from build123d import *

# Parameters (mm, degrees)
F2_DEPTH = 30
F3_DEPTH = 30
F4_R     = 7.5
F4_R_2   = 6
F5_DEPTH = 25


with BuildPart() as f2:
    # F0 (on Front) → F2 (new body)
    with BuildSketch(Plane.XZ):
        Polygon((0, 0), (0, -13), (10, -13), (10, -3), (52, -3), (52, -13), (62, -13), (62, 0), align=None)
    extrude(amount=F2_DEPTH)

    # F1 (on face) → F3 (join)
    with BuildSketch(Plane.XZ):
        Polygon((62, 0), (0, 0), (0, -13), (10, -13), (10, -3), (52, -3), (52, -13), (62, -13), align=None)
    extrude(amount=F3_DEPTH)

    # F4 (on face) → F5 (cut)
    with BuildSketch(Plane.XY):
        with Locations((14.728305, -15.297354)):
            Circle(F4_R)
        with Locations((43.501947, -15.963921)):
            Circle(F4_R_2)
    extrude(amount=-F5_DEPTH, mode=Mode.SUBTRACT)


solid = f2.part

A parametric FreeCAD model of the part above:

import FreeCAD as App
import Part
import Sketcher
from FreeCAD import Vector

doc = App.newDocument("Part")
params = doc.addObject("Spreadsheet::Sheet", "Params")
for row, (alias, value) in enumerate([
    ("sketch1_width", "10 mm"),
    ("sketch1_width2", "42 mm"),
    ("sketch1_height", "13 mm"),
    ("pad1_length", "30 mm"),
    ("sketch2_width", "62 mm"),
    ("sketch2_width2", "10 mm"),
    ("sketch2_height", "13 mm"),
    ("pad2_length", "30 mm"),
    ("sketch3_diameter", "15 mm"),
    ("sketch3_diameter2", "12 mm"),
    ("pocket1_length", "25 mm"),
], start=1):
    params.set(f"A{row}", alias)
    params.set(f"B{row}", "=" + value)
    params.setAlias(f"B{row}", alias)

body = doc.addObject("PartDesign::Body", "Body")

# Sketch on XZ plane
sketch1 = doc.addObject("Sketcher::SketchObject", "Sketch")
body.addObject(sketch1)
sketch1.AttachmentSupport = (doc.XZ_Plane, [""])
sketch1.MapMode = "FlatFace"
sketch1.addGeometry(Part.LineSegment(Vector(0, 0, 0), Vector(0, -13, 0)), False)
sketch1.addGeometry(Part.LineSegment(Vector(0, -13, 0), Vector(10, -13, 0)), False)
sketch1.addGeometry(Part.LineSegment(Vector(10, -13, 0), Vector(10, -3, 0)), False)
sketch1.addGeometry(Part.LineSegment(Vector(10, -3, 0), Vector(52, -3, 0)), False)
sketch1.addGeometry(Part.LineSegment(Vector(52, -3, 0), Vector(52, -13, 0)), False)
sketch1.addGeometry(Part.LineSegment(Vector(52, -13, 0), Vector(62, -13, 0)), False)
sketch1.addGeometry(Part.LineSegment(Vector(62, -13, 0), Vector(62, 0, 0)), False)
sketch1.addGeometry(Part.LineSegment(Vector(62, 0, 0), Vector(0, 0, 0)), False)
sketch1.addConstraint(Sketcher.Constraint("Coincident", 0, 2, 1, 1))
sketch1.addConstraint(Sketcher.Constraint("Coincident", 1, 2, 2, 1))
sketch1.addConstraint(Sketcher.Constraint("Coincident", 2, 2, 3, 1))
sketch1.addConstraint(Sketcher.Constraint("Coincident", 3, 2, 4, 1))
sketch1.addConstraint(Sketcher.Constraint("Coincident", 4, 2, 5, 1))
sketch1.addConstraint(Sketcher.Constraint("Coincident", 5, 2, 6, 1))
sketch1.addConstraint(Sketcher.Constraint("Coincident", 6, 2, 7, 1))
sketch1.addConstraint(Sketcher.Constraint("Coincident", 7, 2, 0, 1))
sketch1.addConstraint(Sketcher.Constraint("Vertical", 0))
sketch1.addConstraint(Sketcher.Constraint("Horizontal", 1))
sketch1.addConstraint(Sketcher.Constraint("Vertical", 2))
sketch1.addConstraint(Sketcher.Constraint("Horizontal", 3))
sketch1.addConstraint(Sketcher.Constraint("Vertical", 4))
sketch1.addConstraint(Sketcher.Constraint("Horizontal", 5))
sketch1.addConstraint(Sketcher.Constraint("Vertical", 6))
sketch1.addConstraint(Sketcher.Constraint("Horizontal", 7))
sketch1.addConstraint(Sketcher.Constraint("Coincident", 7, 2, -1, 1))
sketch1.addConstraint(Sketcher.Constraint("Horizontal", 1, 2, 4, 2))
sketch1.addConstraint(Sketcher.Constraint("Equal", 1, 5))
sketch1.addConstraint(Sketcher.Constraint("Equal", 5, 2))
sketch1.addConstraint(Sketcher.Constraint("DistanceX", 1, 1, 1, 2, 10.0))
sketch1.addConstraint(Sketcher.Constraint("DistanceX", 3, 1, 3, 2, 42.0))
sketch1.addConstraint(Sketcher.Constraint("DistanceY", 0, 2, 0, 1, 13.0))
sketch1.setExpression("Constraints[20]", "Params.sketch1_width")
sketch1.setExpression("Constraints[21]", "Params.sketch1_width2")
sketch1.setExpression("Constraints[22]", "Params.sketch1_height")
pad1 = doc.addObject("PartDesign::Pad", "Pad")
body.addObject(pad1)
pad1.Profile = sketch1
pad1.setExpression("Length", "Params.pad1_length")

# Sketch on XZ plane
sketch2 = doc.addObject("Sketcher::SketchObject", "Sketch001")
body.addObject(sketch2)
sketch2.AttachmentSupport = (doc.XZ_Plane, [""])
sketch2.MapMode = "FlatFace"
sketch2.addGeometry(Part.LineSegment(Vector(62, 0, 0), Vector(0, 0, 0)), False)
sketch2.addGeometry(Part.LineSegment(Vector(0, 0, 0), Vector(0, -13, 0)), False)
sketch2.addGeometry(Part.LineSegment(Vector(0, -13, 0), Vector(10, -13, 0)), False)
sketch2.addGeometry(Part.LineSegment(Vector(10, -13, 0), Vector(10, -3, 0)), False)
sketch2.addGeometry(Part.LineSegment(Vector(10, -3, 0), Vector(52, -3, 0)), False)
sketch2.addGeometry(Part.LineSegment(Vector(52, -3, 0), Vector(52, -13, 0)), False)
sketch2.addGeometry(Part.LineSegment(Vector(52, -13, 0), Vector(62, -13, 0)), False)
sketch2.addGeometry(Part.LineSegment(Vector(62, -13, 0), Vector(62, 0, 0)), False)
sketch2.addConstraint(Sketcher.Constraint("Coincident", 0, 2, 1, 1))
sketch2.addConstraint(Sketcher.Constraint("Coincident", 1, 2, 2, 1))
sketch2.addConstraint(Sketcher.Constraint("Coincident", 2, 2, 3, 1))
sketch2.addConstraint(Sketcher.Constraint("Coincident", 3, 2, 4, 1))
sketch2.addConstraint(Sketcher.Constraint("Coincident", 4, 2, 5, 1))
sketch2.addConstraint(Sketcher.Constraint("Coincident", 5, 2, 6, 1))
sketch2.addConstraint(Sketcher.Constraint("Coincident", 6, 2, 7, 1))
sketch2.addConstraint(Sketcher.Constraint("Coincident", 7, 2, 0, 1))
sketch2.addConstraint(Sketcher.Constraint("Horizontal", 0))
sketch2.addConstraint(Sketcher.Constraint("Vertical", 1))
sketch2.addConstraint(Sketcher.Constraint("Horizontal", 2))
sketch2.addConstraint(Sketcher.Constraint("Vertical", 3))
sketch2.addConstraint(Sketcher.Constraint("Horizontal", 4))
sketch2.addConstraint(Sketcher.Constraint("Vertical", 5))
sketch2.addConstraint(Sketcher.Constraint("Horizontal", 6))
sketch2.addConstraint(Sketcher.Constraint("Vertical", 7))
sketch2.addConstraint(Sketcher.Constraint("Coincident", 0, 2, -1, 1))
sketch2.addConstraint(Sketcher.Constraint("Horizontal", 2, 2, 5, 2))
sketch2.addConstraint(Sketcher.Constraint("Equal", 2, 6))
sketch2.addConstraint(Sketcher.Constraint("Equal", 6, 3))
sketch2.addConstraint(Sketcher.Constraint("DistanceX", 0, 2, 0, 1, 62.0))
sketch2.addConstraint(Sketcher.Constraint("DistanceX", 2, 1, 2, 2, 10.0))
sketch2.addConstraint(Sketcher.Constraint("DistanceY", 1, 2, 1, 1, 13.0))
sketch2.setExpression("Constraints[20]", "Params.sketch2_width")
sketch2.setExpression("Constraints[21]", "Params.sketch2_width2")
sketch2.setExpression("Constraints[22]", "Params.sketch2_height")
pad2 = doc.addObject("PartDesign::Pad", "Pad001")
body.addObject(pad2)
pad2.Profile = sketch2
pad2.setExpression("Length", "Params.pad2_length")

# Sketch on XY plane
sketch3 = doc.addObject("Sketcher::SketchObject", "Sketch002")
body.addObject(sketch3)
sketch3.AttachmentSupport = (doc.XY_Plane, [""])
sketch3.MapMode = "FlatFace"
sketch3.addGeometry(Part.Circle(Vector(15, -15, 0), Vector(0, 0, 1), 8), False)
sketch3.addGeometry(Part.Circle(Vector(44, -16, 0), Vector(0, 0, 1), 6), False)
sketch3.addConstraint(Sketcher.Constraint("Diameter", 0, 15.0))
sketch3.addConstraint(Sketcher.Constraint("Diameter", 1, 12.0))
sketch3.addConstraint(Sketcher.Constraint("DistanceY", 1, 3, -1, 1, 15.963921))
sketch3.addConstraint(Sketcher.Constraint("DistanceX", -1, 1, 0, 3, 14.728305))
sketch3.addConstraint(Sketcher.Constraint("DistanceY", 0, 3, -1, 1, 15.297354))
sketch3.addConstraint(Sketcher.Constraint("DistanceX", -1, 1, 1, 3, 43.501947))
sketch3.setExpression("Constraints[0]", "Params.sketch3_diameter")
sketch3.setExpression("Constraints[1]", "Params.sketch3_diameter2")
pocket1 = doc.addObject("PartDesign::Pocket", "Pocket")
body.addObject(pocket1)
pocket1.Profile = sketch3
pocket1.setExpression("Length", "Params.pocket1_length")

doc.recompute()
